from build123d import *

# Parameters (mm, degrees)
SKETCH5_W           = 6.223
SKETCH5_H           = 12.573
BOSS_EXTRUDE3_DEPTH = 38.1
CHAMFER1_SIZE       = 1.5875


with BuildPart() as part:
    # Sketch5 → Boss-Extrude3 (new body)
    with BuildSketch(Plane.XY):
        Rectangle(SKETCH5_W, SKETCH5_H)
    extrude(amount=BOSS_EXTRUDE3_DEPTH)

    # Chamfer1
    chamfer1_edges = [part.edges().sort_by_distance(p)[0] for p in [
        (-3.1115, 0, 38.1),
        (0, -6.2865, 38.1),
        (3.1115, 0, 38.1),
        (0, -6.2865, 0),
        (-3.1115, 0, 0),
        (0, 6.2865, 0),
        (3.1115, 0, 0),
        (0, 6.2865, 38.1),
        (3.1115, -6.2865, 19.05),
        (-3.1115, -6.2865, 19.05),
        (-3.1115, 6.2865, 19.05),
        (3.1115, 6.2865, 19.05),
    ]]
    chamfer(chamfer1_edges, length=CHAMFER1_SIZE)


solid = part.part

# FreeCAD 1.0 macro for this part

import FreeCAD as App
import Part
import Sketcher
Q = App.Units.Quantity


def add_polygon(sketch, points):
    """Adds a closed chain of lines whose ends are joined by coincident constraints."""
    first, n = sketch.GeometryCount, len(points)
    for a, b in zip(points, points[1:] + points[:1]):
        sketch.addGeometry(Part.LineSegment(App.Vector(*a, 0), App.Vector(*b, 0)), False)
    for i in range(n):
        sketch.addConstraint(Sketcher.Constraint("Coincident", first + i, 2, first + (i + 1) % n, 1))

doc = App.newDocument("Part")
body = doc.addObject("PartDesign::Body", "Body")

sketch1 = doc.addObject("Sketcher::SketchObject", "Sketch")
body.addObject(sketch1)
sketch1.AttachmentSupport = (doc.XY_Plane, [""])
sketch1.MapMode = "FlatFace"
add_polygon(sketch1, [(-3, 6), (-3, -6), (3, -6), (3, 6)])
sketch1.addConstraint(Sketcher.Constraint("Vertical", 0))
sketch1.addConstraint(Sketcher.Constraint("Horizontal", 1))
sketch1.addConstraint(Sketcher.Constraint("Vertical", 2))
sketch1.addConstraint(Sketcher.Constraint("Horizontal", 3))
sketch1.addConstraint(Sketcher.Constraint("Symmetric", 0, 2, 2, 2, -1, 1))
sketch1.addConstraint(Sketcher.Constraint("DistanceX", 1, 1, 1, 2, Q("0.245 in")))
sketch1.addConstraint(Sketcher.Constraint("DistanceY", 0, 2, 0, 1, Q("0.495 in")))
pad1 = doc.addObject("PartDesign::Pad", "Pad")
body.addObject(pad1)
pad1.Profile = sketch1
pad1.Length = Q("1.5 in")
doc.recompute()

chamfer = doc.addObject("PartDesign::Chamfer", "Chamfer")
body.addObject(chamfer)
chamfer.Base = (pad1, ["Edge1"])
chamfer.UseAllEdges = True
chamfer.Size = Q("0.0625 in")

doc.recompute()
